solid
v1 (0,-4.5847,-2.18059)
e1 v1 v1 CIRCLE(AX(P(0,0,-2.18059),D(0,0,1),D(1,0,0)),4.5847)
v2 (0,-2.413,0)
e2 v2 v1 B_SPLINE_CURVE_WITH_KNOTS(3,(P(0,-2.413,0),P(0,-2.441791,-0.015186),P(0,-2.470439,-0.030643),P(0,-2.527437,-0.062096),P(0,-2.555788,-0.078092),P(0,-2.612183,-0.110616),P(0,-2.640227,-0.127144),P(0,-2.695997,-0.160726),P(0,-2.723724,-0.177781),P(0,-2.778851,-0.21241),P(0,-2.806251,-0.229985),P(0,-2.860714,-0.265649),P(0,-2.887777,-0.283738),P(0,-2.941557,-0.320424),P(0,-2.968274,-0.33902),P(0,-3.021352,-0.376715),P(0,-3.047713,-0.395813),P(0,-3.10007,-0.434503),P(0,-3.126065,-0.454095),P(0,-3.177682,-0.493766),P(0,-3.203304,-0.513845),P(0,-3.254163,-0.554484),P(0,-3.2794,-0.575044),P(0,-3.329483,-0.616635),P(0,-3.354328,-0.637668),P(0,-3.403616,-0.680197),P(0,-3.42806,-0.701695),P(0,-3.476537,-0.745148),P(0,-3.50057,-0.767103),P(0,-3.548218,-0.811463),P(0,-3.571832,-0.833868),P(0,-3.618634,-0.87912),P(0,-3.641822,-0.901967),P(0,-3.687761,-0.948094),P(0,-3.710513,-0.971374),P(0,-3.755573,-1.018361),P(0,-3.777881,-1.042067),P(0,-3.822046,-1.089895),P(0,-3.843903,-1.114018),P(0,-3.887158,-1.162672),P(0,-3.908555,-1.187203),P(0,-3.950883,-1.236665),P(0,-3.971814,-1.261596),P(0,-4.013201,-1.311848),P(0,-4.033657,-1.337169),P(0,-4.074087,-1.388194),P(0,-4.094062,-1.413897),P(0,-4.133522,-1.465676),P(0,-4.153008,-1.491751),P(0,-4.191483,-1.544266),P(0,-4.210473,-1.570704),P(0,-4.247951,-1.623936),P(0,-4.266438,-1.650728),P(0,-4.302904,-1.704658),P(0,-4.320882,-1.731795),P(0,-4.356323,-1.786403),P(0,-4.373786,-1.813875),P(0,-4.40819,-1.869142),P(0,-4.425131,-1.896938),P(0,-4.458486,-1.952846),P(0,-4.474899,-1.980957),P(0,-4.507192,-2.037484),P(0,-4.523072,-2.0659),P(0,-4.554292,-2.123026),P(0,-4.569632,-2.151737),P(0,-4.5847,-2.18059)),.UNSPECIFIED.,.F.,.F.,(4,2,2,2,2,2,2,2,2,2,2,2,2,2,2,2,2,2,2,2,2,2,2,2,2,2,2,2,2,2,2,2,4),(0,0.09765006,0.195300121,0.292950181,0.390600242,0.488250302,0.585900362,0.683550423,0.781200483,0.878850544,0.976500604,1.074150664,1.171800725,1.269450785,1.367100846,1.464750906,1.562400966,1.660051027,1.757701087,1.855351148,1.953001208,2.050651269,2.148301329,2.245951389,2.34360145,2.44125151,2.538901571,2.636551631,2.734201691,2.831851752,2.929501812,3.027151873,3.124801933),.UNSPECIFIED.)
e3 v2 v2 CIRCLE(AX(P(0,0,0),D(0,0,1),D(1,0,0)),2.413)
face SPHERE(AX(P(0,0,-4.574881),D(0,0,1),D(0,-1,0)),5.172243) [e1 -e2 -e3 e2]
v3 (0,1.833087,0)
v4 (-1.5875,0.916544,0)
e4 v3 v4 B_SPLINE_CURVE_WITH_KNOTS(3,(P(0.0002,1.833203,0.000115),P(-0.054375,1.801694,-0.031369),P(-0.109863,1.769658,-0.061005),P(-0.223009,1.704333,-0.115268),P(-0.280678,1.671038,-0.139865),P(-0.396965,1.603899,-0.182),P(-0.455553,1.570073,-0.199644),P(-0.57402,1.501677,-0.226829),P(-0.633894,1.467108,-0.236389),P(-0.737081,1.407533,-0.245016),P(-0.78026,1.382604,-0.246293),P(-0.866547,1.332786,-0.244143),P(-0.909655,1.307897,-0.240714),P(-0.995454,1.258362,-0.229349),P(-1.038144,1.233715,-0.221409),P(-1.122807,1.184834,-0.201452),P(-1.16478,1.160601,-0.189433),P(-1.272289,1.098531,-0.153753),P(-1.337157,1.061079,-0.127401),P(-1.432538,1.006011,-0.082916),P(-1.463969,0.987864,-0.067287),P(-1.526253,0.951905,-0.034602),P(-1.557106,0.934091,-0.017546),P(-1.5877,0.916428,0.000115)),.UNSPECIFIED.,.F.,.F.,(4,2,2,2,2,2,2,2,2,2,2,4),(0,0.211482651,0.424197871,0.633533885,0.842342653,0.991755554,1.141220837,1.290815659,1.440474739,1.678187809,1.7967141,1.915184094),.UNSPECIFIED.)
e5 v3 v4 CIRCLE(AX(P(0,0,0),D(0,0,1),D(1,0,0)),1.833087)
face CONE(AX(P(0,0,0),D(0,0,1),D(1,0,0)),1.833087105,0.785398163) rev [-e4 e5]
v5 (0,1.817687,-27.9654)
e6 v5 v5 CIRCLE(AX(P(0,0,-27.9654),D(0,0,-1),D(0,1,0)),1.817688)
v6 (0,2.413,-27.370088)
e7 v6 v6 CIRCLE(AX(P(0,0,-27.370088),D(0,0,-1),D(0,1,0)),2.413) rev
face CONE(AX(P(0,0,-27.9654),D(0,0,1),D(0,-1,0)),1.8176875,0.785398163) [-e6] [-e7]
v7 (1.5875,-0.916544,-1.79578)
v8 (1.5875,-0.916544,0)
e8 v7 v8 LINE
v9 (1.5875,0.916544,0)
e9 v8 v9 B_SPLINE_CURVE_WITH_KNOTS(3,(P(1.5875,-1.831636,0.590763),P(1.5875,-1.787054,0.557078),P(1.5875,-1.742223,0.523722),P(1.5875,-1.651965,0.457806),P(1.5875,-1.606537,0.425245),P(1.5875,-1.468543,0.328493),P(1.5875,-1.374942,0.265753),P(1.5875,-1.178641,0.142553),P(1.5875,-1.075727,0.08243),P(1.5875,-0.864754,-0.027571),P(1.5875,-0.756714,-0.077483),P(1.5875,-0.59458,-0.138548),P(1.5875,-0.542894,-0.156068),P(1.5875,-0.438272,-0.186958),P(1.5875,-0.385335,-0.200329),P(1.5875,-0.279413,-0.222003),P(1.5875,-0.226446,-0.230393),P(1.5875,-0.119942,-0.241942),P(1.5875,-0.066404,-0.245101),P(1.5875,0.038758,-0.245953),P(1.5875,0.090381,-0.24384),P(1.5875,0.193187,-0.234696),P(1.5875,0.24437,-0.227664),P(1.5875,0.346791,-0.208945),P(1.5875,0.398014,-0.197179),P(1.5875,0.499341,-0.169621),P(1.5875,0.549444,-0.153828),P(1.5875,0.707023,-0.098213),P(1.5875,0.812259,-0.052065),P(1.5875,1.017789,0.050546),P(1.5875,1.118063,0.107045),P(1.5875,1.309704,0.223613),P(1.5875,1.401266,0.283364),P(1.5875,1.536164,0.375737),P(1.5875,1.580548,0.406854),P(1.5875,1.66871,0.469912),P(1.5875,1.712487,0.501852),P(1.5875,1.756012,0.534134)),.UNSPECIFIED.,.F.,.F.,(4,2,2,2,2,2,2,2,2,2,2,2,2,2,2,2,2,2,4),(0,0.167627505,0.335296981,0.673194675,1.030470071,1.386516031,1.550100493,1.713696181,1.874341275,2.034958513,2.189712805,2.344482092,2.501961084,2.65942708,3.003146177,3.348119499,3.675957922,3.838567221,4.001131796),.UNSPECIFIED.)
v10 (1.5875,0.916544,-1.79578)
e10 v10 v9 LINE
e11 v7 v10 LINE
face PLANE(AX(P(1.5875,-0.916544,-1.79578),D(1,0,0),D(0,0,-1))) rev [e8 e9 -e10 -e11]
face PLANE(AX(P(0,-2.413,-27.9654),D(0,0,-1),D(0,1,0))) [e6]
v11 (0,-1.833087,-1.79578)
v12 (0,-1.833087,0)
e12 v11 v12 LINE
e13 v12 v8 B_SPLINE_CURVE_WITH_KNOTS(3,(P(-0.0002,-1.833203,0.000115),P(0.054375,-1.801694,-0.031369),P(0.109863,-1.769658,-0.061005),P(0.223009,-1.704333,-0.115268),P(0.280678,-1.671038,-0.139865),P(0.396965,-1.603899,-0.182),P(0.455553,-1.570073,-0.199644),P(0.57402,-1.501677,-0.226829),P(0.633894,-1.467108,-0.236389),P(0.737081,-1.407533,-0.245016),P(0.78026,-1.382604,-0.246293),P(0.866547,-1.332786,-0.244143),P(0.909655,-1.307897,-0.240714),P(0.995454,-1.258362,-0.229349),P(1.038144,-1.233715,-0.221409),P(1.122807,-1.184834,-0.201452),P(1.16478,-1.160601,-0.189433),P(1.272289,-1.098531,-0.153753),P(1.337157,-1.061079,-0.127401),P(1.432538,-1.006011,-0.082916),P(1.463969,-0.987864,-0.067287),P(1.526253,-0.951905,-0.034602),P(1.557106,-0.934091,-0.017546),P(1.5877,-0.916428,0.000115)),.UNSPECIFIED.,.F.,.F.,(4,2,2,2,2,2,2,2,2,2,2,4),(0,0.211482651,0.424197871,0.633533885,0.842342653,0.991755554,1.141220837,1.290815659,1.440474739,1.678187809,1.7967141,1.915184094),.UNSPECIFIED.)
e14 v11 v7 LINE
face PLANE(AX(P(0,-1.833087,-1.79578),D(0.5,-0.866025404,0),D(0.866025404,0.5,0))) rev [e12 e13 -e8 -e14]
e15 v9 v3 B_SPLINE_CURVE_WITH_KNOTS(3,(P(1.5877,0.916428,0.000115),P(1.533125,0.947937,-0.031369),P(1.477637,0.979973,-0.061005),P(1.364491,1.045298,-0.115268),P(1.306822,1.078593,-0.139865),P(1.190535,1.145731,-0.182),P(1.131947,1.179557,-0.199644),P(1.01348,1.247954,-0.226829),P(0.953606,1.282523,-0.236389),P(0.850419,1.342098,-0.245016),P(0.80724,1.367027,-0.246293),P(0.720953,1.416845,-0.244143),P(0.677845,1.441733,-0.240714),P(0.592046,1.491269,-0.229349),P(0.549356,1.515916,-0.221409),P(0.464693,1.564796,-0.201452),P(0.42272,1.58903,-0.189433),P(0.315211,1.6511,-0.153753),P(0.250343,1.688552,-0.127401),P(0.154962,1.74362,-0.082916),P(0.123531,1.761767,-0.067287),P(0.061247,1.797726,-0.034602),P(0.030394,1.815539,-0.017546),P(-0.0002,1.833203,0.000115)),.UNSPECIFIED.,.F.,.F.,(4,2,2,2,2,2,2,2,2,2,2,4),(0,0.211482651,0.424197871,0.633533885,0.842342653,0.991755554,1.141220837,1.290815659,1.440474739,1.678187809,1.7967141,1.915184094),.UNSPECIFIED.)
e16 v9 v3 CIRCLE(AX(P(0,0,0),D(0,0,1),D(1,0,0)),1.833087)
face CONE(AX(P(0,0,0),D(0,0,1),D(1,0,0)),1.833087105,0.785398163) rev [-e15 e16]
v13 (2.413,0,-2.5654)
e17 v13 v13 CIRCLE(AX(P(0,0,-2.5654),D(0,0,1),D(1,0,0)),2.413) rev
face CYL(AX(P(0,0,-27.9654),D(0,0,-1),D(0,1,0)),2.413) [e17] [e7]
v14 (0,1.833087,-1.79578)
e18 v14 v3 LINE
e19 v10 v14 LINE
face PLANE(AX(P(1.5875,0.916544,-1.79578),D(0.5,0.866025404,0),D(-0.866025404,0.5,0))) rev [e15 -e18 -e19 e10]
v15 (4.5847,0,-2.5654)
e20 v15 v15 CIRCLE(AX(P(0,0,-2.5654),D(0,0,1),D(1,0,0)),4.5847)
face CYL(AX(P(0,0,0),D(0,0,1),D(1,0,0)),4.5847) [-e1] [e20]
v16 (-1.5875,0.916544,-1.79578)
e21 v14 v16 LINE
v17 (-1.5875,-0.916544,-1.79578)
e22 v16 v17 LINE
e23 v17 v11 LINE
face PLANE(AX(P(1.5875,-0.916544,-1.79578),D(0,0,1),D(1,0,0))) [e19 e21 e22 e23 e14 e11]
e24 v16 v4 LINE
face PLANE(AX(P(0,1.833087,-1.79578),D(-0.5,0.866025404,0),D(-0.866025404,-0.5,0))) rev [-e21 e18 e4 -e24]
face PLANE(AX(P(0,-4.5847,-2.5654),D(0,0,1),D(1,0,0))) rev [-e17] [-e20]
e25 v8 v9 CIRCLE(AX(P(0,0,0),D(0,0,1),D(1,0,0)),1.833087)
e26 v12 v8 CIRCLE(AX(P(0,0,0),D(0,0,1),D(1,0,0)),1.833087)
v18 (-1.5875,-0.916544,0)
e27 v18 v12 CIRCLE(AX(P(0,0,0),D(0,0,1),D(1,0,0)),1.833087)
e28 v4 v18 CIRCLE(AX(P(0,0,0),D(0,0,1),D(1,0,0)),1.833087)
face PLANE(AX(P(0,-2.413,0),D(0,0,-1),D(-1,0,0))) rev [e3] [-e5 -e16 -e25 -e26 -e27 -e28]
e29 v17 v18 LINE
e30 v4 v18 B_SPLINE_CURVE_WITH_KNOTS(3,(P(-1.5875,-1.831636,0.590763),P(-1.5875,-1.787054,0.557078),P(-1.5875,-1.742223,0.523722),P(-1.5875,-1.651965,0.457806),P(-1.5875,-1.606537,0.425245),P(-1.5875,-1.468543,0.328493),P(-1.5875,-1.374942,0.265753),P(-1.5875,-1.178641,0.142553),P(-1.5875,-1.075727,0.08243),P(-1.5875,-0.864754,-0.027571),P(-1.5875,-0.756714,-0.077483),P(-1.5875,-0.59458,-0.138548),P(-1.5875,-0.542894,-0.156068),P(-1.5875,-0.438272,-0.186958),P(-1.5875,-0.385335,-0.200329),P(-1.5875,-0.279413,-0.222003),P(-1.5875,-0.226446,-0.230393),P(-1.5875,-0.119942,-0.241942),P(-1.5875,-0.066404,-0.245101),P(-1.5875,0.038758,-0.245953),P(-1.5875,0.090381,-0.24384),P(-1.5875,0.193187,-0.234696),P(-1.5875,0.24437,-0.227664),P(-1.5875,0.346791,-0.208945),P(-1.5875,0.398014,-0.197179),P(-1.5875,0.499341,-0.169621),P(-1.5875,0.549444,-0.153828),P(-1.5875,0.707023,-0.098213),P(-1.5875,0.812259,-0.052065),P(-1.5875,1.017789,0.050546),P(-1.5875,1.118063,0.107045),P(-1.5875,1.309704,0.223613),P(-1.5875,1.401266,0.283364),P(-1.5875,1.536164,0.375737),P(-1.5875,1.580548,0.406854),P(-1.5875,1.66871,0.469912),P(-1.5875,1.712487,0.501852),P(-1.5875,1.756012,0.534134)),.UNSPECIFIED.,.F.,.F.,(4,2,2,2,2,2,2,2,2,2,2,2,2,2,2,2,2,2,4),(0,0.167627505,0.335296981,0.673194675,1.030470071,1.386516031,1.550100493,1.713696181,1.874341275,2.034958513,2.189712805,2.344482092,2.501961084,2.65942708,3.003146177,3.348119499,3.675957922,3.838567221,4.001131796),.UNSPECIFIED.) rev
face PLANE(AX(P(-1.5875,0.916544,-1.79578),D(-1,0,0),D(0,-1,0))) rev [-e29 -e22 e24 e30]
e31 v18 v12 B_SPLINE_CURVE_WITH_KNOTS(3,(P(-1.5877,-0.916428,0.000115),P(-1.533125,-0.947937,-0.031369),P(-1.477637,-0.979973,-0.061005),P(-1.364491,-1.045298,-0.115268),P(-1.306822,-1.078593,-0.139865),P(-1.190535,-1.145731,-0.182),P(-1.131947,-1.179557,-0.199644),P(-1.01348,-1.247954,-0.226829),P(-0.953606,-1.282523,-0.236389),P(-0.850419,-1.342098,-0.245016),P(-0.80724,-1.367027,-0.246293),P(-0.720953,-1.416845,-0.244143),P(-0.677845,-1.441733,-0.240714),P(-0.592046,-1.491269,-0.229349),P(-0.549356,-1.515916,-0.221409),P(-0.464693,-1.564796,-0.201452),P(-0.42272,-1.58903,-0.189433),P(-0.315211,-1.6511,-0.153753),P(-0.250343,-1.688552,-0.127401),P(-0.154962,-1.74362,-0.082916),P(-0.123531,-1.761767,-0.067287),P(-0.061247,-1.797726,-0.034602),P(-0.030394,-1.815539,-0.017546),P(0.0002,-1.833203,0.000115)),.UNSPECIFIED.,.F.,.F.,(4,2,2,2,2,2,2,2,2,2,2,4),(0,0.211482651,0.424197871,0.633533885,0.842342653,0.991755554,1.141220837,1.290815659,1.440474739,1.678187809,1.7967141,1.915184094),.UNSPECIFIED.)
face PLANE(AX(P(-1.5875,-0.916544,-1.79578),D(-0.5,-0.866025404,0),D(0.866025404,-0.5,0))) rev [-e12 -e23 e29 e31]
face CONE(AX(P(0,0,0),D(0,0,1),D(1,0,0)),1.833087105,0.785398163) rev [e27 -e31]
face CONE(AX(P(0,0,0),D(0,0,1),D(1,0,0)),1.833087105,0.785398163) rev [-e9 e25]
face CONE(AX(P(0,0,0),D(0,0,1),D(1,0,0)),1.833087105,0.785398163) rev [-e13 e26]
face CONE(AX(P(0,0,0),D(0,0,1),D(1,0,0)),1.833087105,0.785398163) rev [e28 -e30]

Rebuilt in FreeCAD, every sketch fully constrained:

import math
import FreeCAD as App
import Part
import Sketcher
from FreeCAD import Vector
Q = App.Units.Quantity


def edges_at(feature, points):
    """Names of the edges that pass closest to the given points."""
    edges = feature.Shape.Edges
    near = lambda p: min(range(len(edges)), key=lambda i: edges[i].distToShape(Part.Vertex(*p))[0])
    return sorted({f"Edge{near(p) + 1}" for p in points})


def add_polygon(sketch, points):
    """Adds a closed chain of lines whose ends are joined by coincident constraints."""
    first, n = sketch.GeometryCount, len(points)
    for a, b in zip(points, points[1:] + points[:1]):
        sketch.addGeometry(Part.LineSegment(App.Vector(*a, 0), App.Vector(*b, 0)), False)
    for i in range(n):
        sketch.addConstraint(Sketcher.Constraint("Coincident", first + i, 2, first + (i + 1) % n, 1))

doc = App.newDocument("Part")
body = doc.addObject("PartDesign::Body", "Body")

# Sketch on YZ plane
sketch1 = body.newObject("Sketcher::SketchObject", "Sketch")
sketch1.AttachmentSupport = (doc.getObject("YZ_Plane"), [""])
sketch1.MapMode = "FlatFace"
add_polygon(sketch1, [(2.4, -2.6), (0, -2.6), (0, -28), (2.4, -28)])  # lines 0-3
sketch1.addConstraint(Sketcher.Constraint("Horizontal", 0))
sketch1.addConstraint(Sketcher.Constraint("Vertical", 1))
sketch1.addConstraint(Sketcher.Constraint("Horizontal", 2))
sketch1.addConstraint(Sketcher.Constraint("Vertical", 3))
sketch1.addConstraint(Sketcher.Constraint("PointOnObject", 0, 2, -2))
sketch1.addConstraint(Sketcher.Constraint("DistanceY", 1, 2, 1, 1, Q("1 in")))
sketch1.addConstraint(Sketcher.Constraint("DistanceX", 0, 2, 0, 1, Q("0.095 in")))
sketch1.addConstraint(Sketcher.Constraint("DistanceY", 0, 2, -1, 1, Q("0.101 in")))
revolution = body.newObject("PartDesign::Revolution", "Revolution")
revolution.Profile = sketch1
revolution.ReferenceAxis = (sketch1, ["V_Axis"])
revolution.Angle = 360
doc.recompute()

chamfer = body.newObject("PartDesign::Chamfer", "Chamfer")
chamfer.Base = (revolution, edges_at(revolution, [(0, -2.413, -27.965)]))
chamfer.Size = 0.595313

# Sketch on YZ plane
sketch2 = body.newObject("Sketcher::SketchObject", "Sketch001")
sketch2.AttachmentSupport = (doc.getObject("YZ_Plane"), [""])
sketch2.MapMode = "FlatFace"
sketch2.addGeometry(Part.LineSegment(Vector(4.58, -2.57, 0), Vector(4.58, -2.18, 0)), False)
sketch2.addGeometry(Part.ArcOfCircle(Part.Circle(Vector(0, -4.57, 0), Vector(0, 0, 1), 5.17), math.radians(28), math.radians(62)), False)
sketch2.addGeometry(Part.LineSegment(Vector(2.41, 0, 0), Vector(0, 0, 0)), False)
sketch2.addGeometry(Part.LineSegment(Vector(0, 0, 0), Vector(0, -2.57, 0)), False)
sketch2.addGeometry(Part.LineSegment(Vector(0, -2.57, 0), Vector(4.58, -2.57, 0)), False)
sketch2.addConstraint(Sketcher.Constraint("Coincident", 0, 2, 1, 1))
sketch2.addConstraint(Sketcher.Constraint("Coincident", 1, 2, 2, 1))
sketch2.addConstraint(Sketcher.Constraint("Coincident", 2, 2, 3, 1))
sketch2.addConstraint(Sketcher.Constraint("Coincident", 3, 2, 4, 1))
sketch2.addConstraint(Sketcher.Constraint("Coincident", 4, 2, 0, 1))
sketch2.addConstraint(Sketcher.Constraint("Vertical", 0))
sketch2.addConstraint(Sketcher.Constraint("Horizontal", 2))
sketch2.addConstraint(Sketcher.Constraint("Vertical", 3))
sketch2.addConstraint(Sketcher.Constraint("Horizontal", 4))
sketch2.addConstraint(Sketcher.Constraint("Coincident", 2, 2, -1, 1))
sketch2.addConstraint(Sketcher.Constraint("PointOnObject", 1, 3, -2))
sketch2.addConstraint(Sketcher.Constraint("DistanceX", 2, 2, 2, 1, Q("0.095 in")))
sketch2.addConstraint(Sketcher.Constraint("DistanceY", 3, 2, 3, 1, Q("0.101 in")))
sketch2.addConstraint(Sketcher.Constraint("DistanceX", 4, 1, 4, 2, Q("0.1805 in")))
sketch2.addConstraint(Sketcher.Constraint("Radius", 1, 5.172243))
revolution2 = body.newObject("PartDesign::Revolution", "Revolution001")
revolution2.Profile = sketch2
revolution2.ReferenceAxis = (sketch2, ["V_Axis"])
revolution2.Angle = 360

# Sketch on XY plane
sketch3 = body.newObject("Sketcher::SketchObject", "Sketch002")
sketch3.AttachmentSupport = (doc.getObject("XY_Plane"), [""])
sketch3.MapMode = "FlatFace"
add_polygon(sketch3, [(1.6, -0.9), (1.6, 0.9), (0, 1.8), (-1.6, 0.9), (-1.6, -0.9), (0, -1.8)])  # lines 0-5
sketch3.addConstraint(Sketcher.Constraint("Vertical", 0))
sketch3.addConstraint(Sketcher.Constraint("Vertical", 3))
sketch3.addConstraint(Sketcher.Constraint("Symmetric", 0, 2, 3, 2, -1, 1))
sketch3.addConstraint(Sketcher.Constraint("Symmetric", 1, 2, 4, 2, -1, 1))
sketch3.addConstraint(Sketcher.Constraint("PointOnObject", 1, 2, -2))
sketch3.addConstraint(Sketcher.Constraint("Parallel", 2, 5))
sketch3.addConstraint(Sketcher.Constraint("Horizontal", 0, 2, 2, 2))
sketch3.addConstraint(Sketcher.Constraint("Angle", 1, Q("150 deg")))
sketch3.addConstraint(Sketcher.Constraint("DistanceX", -1, 1, 0, 2, Q("0.0625 in")))
sketch3.addConstraint(Sketcher.Constraint("DistanceY", 0, 1, 0, 2, 1.833087))
pocket1 = body.newObject("PartDesign::Pocket", "Pocket")
pocket1.Profile = sketch3
pocket1.Length = Q("0.0707 in")

# Sketch on XY plane
sketch4 = body.newObject("Sketcher::SketchObject", "Sketch003")
sketch4.AttachmentSupport = (doc.getObject("XY_Plane"), [""])
sketch4.MapMode = "FlatFace"
sketch4.addGeometry(Part.Circle(Vector(0, 0, 0), Vector(0, 0, 1), 1.8), False)
sketch4.addConstraint(Sketcher.Constraint("Coincident", 0, 3, -1, 1))
sketch4.addConstraint(Sketcher.Constraint("Diameter", 0, 3.666174))
pocket2 = body.newObject("PartDesign::Pocket", "Pocket001")
pocket2.Profile = sketch4
pocket2.Length = Q("0.0707 in")
pocket2.TaperAngle = -45

doc.recompute()
